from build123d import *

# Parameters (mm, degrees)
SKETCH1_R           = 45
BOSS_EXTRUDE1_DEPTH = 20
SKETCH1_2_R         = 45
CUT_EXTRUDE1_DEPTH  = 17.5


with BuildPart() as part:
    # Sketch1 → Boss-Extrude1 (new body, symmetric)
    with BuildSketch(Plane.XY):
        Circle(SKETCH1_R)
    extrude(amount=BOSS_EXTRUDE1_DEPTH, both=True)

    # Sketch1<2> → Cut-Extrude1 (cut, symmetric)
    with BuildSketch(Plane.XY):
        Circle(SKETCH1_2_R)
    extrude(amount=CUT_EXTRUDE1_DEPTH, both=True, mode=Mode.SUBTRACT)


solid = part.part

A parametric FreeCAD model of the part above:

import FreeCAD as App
import Part
import Sketcher
Q = App.Units.Quantity

doc = App.newDocument("Part")
body = doc.addObject("PartDesign::Body", "Body")
body.AllowCompound = True

# Sketch on XY plane
sketch1 = body.newObject("Sketcher::SketchObject", "Sketch")
sketch1.AttachmentSupport = (doc.getObject("XY_Plane"), [""])
sketch1.MapMode = "FlatFace"
sketch1.addGeometry(Part.Circle(App.Vector(0, 0, 0), App.Vector(0, 0, 1), 45), False)
sketch1.addConstraint([
    Sketcher.Constraint("Coincident", 0, 3, -1, 1),
    Sketcher.Constraint("Diameter", 0, Q("90 mm")),
])
pad1 = body.newObject("PartDesign::Pad", "Pad")
pad1.Profile = sketch1
pad1.Length = 40
pad1.Midplane = True

# Sketch on XY plane
sketch2 = body.newObject("Sketcher::SketchObject", "Sketch001")
sketch2.AttachmentSupport = (doc.getObject("XY_Plane"), [""])
sketch2.MapMode = "FlatFace"
sketch2.addGeometry(Part.Circle(App.Vector(0, 0, 0), App.Vector(0, 0, 1), 45), False)
sketch2.addConstraint([
    Sketcher.Constraint("Coincident", 0, 3, -1, 1),
    Sketcher.Constraint("Diameter", 0, Q("90 mm")),
])
pocket1 = body.newObject("PartDesign::Pocket", "Pocket")
pocket1.Profile = sketch2
pocket1.Length = 35
pocket1.Midplane = True

doc.recompute()
